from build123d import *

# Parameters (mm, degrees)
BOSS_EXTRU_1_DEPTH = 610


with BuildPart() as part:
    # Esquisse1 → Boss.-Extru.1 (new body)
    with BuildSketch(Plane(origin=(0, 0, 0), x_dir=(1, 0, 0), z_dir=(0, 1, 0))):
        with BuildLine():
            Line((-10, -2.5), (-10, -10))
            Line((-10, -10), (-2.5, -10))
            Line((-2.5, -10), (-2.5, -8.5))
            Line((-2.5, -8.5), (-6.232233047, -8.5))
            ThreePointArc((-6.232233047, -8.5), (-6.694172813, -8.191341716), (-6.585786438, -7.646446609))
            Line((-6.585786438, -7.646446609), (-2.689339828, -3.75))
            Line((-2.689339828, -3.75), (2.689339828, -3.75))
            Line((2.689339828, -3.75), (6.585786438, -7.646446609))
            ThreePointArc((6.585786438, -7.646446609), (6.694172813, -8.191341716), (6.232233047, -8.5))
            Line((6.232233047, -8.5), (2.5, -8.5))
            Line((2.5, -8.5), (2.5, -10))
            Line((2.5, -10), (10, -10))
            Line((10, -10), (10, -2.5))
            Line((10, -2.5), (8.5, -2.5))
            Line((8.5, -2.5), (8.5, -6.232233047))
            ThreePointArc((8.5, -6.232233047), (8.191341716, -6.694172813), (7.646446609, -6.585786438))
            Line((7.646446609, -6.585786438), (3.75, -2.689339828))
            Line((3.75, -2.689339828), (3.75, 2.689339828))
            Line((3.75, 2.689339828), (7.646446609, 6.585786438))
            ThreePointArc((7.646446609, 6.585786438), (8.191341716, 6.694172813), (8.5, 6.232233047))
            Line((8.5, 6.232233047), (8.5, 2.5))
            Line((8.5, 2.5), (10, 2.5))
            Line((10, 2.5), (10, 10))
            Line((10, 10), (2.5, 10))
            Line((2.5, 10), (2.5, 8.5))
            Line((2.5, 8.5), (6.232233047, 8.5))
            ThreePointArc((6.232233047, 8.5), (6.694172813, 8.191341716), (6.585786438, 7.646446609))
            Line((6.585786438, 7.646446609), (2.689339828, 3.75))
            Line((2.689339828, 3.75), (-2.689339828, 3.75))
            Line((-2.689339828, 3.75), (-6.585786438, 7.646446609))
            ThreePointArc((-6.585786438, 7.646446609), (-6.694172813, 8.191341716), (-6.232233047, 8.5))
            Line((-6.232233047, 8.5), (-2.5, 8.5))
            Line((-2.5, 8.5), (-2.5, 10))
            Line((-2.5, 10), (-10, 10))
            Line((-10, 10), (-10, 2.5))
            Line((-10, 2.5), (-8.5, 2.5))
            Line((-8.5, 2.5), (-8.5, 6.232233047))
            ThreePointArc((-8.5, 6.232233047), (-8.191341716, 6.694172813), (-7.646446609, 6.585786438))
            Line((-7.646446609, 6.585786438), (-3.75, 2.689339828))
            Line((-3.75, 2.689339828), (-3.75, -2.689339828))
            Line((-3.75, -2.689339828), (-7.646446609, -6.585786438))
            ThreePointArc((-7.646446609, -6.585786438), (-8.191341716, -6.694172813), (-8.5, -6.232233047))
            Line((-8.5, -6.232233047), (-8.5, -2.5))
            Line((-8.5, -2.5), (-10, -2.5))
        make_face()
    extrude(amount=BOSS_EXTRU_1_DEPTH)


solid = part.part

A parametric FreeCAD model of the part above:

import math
import FreeCAD as App
import Part
import Sketcher
from FreeCAD import Vector

doc = App.newDocument("Part")
body = doc.addObject("PartDesign::Body", "Body")

sketch1 = doc.addObject("Sketcher::SketchObject", "Sketch")
body.addObject(sketch1)
sketch1.AttachmentSupport = (doc.XZ_Plane, [""])
sketch1.MapMode = "FlatFace"
sketch1.addGeometry(Part.LineSegment(Vector(-10, 2.5, 0), Vector(-10, 10, 0)), False)
sketch1.addGeometry(Part.LineSegment(Vector(-10, 10, 0), Vector(-2.5, 10, 0)), False)
sketch1.addGeometry(Part.LineSegment(Vector(-2.5, 10, 0), Vector(-2.5, 8.5, 0)), False)
sketch1.addGeometry(Part.LineSegment(Vector(-2.5, 8.5, 0), Vector(-6.2, 8.5, 0)), False)
sketch1.addGeometry(Part.ArcOfCircle(Part.Circle(Vector(-6.2, 8, 0), Vector(0, 0, 1), 0.5), math.radians(90), math.radians(225)), False)
sketch1.addGeometry(Part.LineSegment(Vector(-6.6, 7.6, 0), Vector(-2.7, 3.8, 0)), False)
sketch1.addGeometry(Part.LineSegment(Vector(-2.7, 3.8, 0), Vector(2.7, 3.8, 0)), False)
sketch1.addGeometry(Part.LineSegment(Vector(2.7, 3.8, 0), Vector(6.6, 7.6, 0)), False)
sketch1.addGeometry(Part.ArcOfCircle(Part.Circle(Vector(6.2, 8, 0), Vector(0, 0, 1), 0.5), math.radians(-45), math.radians(90)), False)
sketch1.addGeometry(Part.LineSegment(Vector(6.2, 8.5, 0), Vector(2.5, 8.5, 0)), False)
sketch1.addGeometry(Part.LineSegment(Vector(2.5, 8.5, 0), Vector(2.5, 10, 0)), False)
sketch1.addGeometry(Part.LineSegment(Vector(2.5, 10, 0), Vector(10, 10, 0)), False)
sketch1.addGeometry(Part.LineSegment(Vector(10, 10, 0), Vector(10, 2.5, 0)), False)
sketch1.addGeometry(Part.LineSegment(Vector(10, 2.5, 0), Vector(8.5, 2.5, 0)), False)
sketch1.addGeometry(Part.LineSegment(Vector(8.5, 2.5, 0), Vector(8.5, 6.2, 0)), False)
sketch1.addGeometry(Part.ArcOfCircle(Part.Circle(Vector(8, 6.2, 0), Vector(0, 0, 1), 0.5), math.radians(0), math.radians(135)), False)
sketch1.addGeometry(Part.LineSegment(Vector(7.6, 6.6, 0), Vector(3.8, 2.7, 0)), False)
sketch1.addGeometry(Part.LineSegment(Vector(3.8, 2.7, 0), Vector(3.8, -2.7, 0)), False)
sketch1.addGeometry(Part.LineSegment(Vector(3.8, -2.7, 0), Vector(7.6, -6.6, 0)), False)
sketch1.addGeometry(Part.ArcOfCircle(Part.Circle(Vector(8, -6.2, 0), Vector(0, 0, 1), 0.5), math.radians(-135), math.radians(0)), False)
sketch1.addGeometry(Part.LineSegment(Vector(8.5, -6.2, 0), Vector(8.5, -2.5, 0)), False)
sketch1.addGeometry(Part.LineSegment(Vector(8.5, -2.5, 0), Vector(10, -2.5, 0)), False)
sketch1.addGeometry(Part.LineSegment(Vector(10, -2.5, 0), Vector(10, -10, 0)), False)
sketch1.addGeometry(Part.LineSegment(Vector(10, -10, 0), Vector(2.5, -10, 0)), False)
sketch1.addGeometry(Part.LineSegment(Vector(2.5, -10, 0), Vector(2.5, -8.5, 0)), False)
sketch1.addGeometry(Part.LineSegment(Vector(2.5, -8.5, 0), Vector(6.2, -8.5, 0)), False)
sketch1.addGeometry(Part.ArcOfCircle(Part.Circle(Vector(6.2, -8, 0), Vector(0, 0, 1), 0.5), math.radians(-90), math.radians(45)), False)
sketch1.addGeometry(Part.LineSegment(Vector(6.6, -7.6, 0), Vector(2.7, -3.8, 0)), False)
sketch1.addGeometry(Part.LineSegment(Vector(2.7, -3.8, 0), Vector(-2.7, -3.8, 0)), False)
sketch1.addGeometry(Part.LineSegment(Vector(-2.7, -3.8, 0), Vector(-6.6, -7.6, 0)), False)
sketch1.addGeometry(Part.ArcOfCircle(Part.Circle(Vector(-6.2, -8, 0), Vector(0, 0, 1), 0.5), math.radians(135), math.radians(270)), False)
sketch1.addGeometry(Part.LineSegment(Vector(-6.2, -8.5, 0), Vector(-2.5, -8.5, 0)), False)
sketch1.addGeometry(Part.LineSegment(Vector(-2.5, -8.5, 0), Vector(-2.5, -10, 0)), False)
sketch1.addGeometry(Part.LineSegment(Vector(-2.5, -10, 0), Vector(-10, -10, 0)), False)
sketch1.addGeometry(Part.LineSegment(Vector(-10, -10, 0), Vector(-10, -2.5, 0)), False)
sketch1.addGeometry(Part.LineSegment(Vector(-10, -2.5, 0), Vector(-8.5, -2.5, 0)), False)
sketch1.addGeometry(Part.LineSegment(Vector(-8.5, -2.5, 0), Vector(-8.5, -6.2, 0)), False)
sketch1.addGeometry(Part.ArcOfCircle(Part.Circle(Vector(-8, -6.2, 0), Vector(0, 0, 1), 0.5), math.radians(-180), math.radians(-45)), False)
sketch1.addGeometry(Part.LineSegment(Vector(-7.6, -6.6, 0), Vector(-3.8, -2.7, 0)), False)
sketch1.addGeometry(Part.LineSegment(Vector(-3.8, -2.7, 0), Vector(-3.8, 2.7, 0)), False)
sketch1.addGeometry(Part.LineSegment(Vector(-3.8, 2.7, 0), Vector(-7.6, 6.6, 0)), False)
sketch1.addGeometry(Part.ArcOfCircle(Part.Circle(Vector(-8, 6.2, 0), Vector(0, 0, 1), 0.5), math.radians(45), math.radians(180)), False)
sketch1.addGeometry(Part.LineSegment(Vector(-8.5, 6.2, 0), Vector(-8.5, 2.5, 0)), False)
sketch1.addGeometry(Part.LineSegment(Vector(-8.5, 2.5, 0), Vector(-10, 2.5, 0)), False)
sketch1.addConstraint(Sketcher.Constraint("Coincident", 0, 2, 1, 1))
sketch1.addConstraint(Sketcher.Constraint("Coincident", 1, 2, 2, 1))
sketch1.addConstraint(Sketcher.Constraint("Coincident", 2, 2, 3, 1))
sketch1.addConstraint(Sketcher.Constraint("Tangent", 3, 2, 4, 1))
sketch1.addConstraint(Sketcher.Constraint("Tangent", 4, 2, 5, 1))
sketch1.addConstraint(Sketcher.Constraint("Coincident", 5, 2, 6, 1))
sketch1.addConstraint(Sketcher.Constraint("Coincident", 6, 2, 7, 1))
sketch1.addConstraint(Sketcher.Constraint("Tangent", 7, 2, 8, 1))
sketch1.addConstraint(Sketcher.Constraint("Tangent", 8, 2, 9, 1))
sketch1.addConstraint(Sketcher.Constraint("Coincident", 9, 2, 10, 1))
sketch1.addConstraint(Sketcher.Constraint("Coincident", 10, 2, 11, 1))
sketch1.addConstraint(Sketcher.Constraint("Coincident", 11, 2, 12, 1))
sketch1.addConstraint(Sketcher.Constraint("Coincident", 12, 2, 13, 1))
sketch1.addConstraint(Sketcher.Constraint("Coincident", 13, 2, 14, 1))
sketch1.addConstraint(Sketcher.Constraint("Tangent", 14, 2, 15, 1))
sketch1.addConstraint(Sketcher.Constraint("Tangent", 15, 2, 16, 1))
sketch1.addConstraint(Sketcher.Constraint("Coincident", 16, 2, 17, 1))
sketch1.addConstraint(Sketcher.Constraint("Coincident", 17, 2, 18, 1))
sketch1.addConstraint(Sketcher.Constraint("Tangent", 18, 2, 19, 1))
sketch1.addConstraint(Sketcher.Constraint("Tangent", 19, 2, 20, 1))
sketch1.addConstraint(Sketcher.Constraint("Coincident", 20, 2, 21, 1))
sketch1.addConstraint(Sketcher.Constraint("Coincident", 21, 2, 22, 1))
sketch1.addConstraint(Sketcher.Constraint("Coincident", 22, 2, 23, 1))
sketch1.addConstraint(Sketcher.Constraint("Coincident", 23, 2, 24, 1))
sketch1.addConstraint(Sketcher.Constraint("Coincident", 24, 2, 25, 1))
sketch1.addConstraint(Sketcher.Constraint("Tangent", 25, 2, 26, 1))
sketch1.addConstraint(Sketcher.Constraint("Tangent", 26, 2, 27, 1))
sketch1.addConstraint(Sketcher.Constraint("Coincident", 27, 2, 28, 1))
sketch1.addConstraint(Sketcher.Constraint("Coincident", 28, 2, 29, 1))
sketch1.addConstraint(Sketcher.Constraint("Tangent", 29, 2, 30, 1))
sketch1.addConstraint(Sketcher.Constraint("Tangent", 30, 2, 31, 1))
sketch1.addConstraint(Sketcher.Constraint("Coincident", 31, 2, 32, 1))
sketch1.addConstraint(Sketcher.Constraint("Coincident", 32, 2, 33, 1))
sketch1.addConstraint(Sketcher.Constraint("Coincident", 33, 2, 34, 1))
sketch1.addConstraint(Sketcher.Constraint("Coincident", 34, 2, 35, 1))
sketch1.addConstraint(Sketcher.Constraint("Coincident", 35, 2, 36, 1))
sketch1.addConstraint(Sketcher.Constraint("Tangent", 36, 2, 37, 1))
sketch1.addConstraint(Sketcher.Constraint("Tangent", 37, 2, 38, 1))
sketch1.addConstraint(Sketcher.Constraint("Coincident", 38, 2, 39, 1))
sketch1.addConstraint(Sketcher.Constraint("Coincident", 39, 2, 40, 1))
sketch1.addConstraint(Sketcher.Constraint("Tangent", 40, 2, 41, 1))
sketch1.addConstraint(Sketcher.Constraint("Tangent", 41, 2, 42, 1))
sketch1.addConstraint(Sketcher.Constraint("Coincident", 42, 2, 43, 1))
sketch1.addConstraint(Sketcher.Constraint("Coincident", 43, 2, 0, 1))
sketch1.addConstraint(Sketcher.Constraint("Vertical", 0))
sketch1.addConstraint(Sketcher.Constraint("Horizontal", 1))
sketch1.addConstraint(Sketcher.Constraint("Vertical", 2))
sketch1.addConstraint(Sketcher.Constraint("Horizontal", 3))
sketch1.addConstraint(Sketcher.Constraint("Horizontal", 6))
sketch1.addConstraint(Sketcher.Constraint("Horizontal", 9))
sketch1.addConstraint(Sketcher.Constraint("Vertical", 10))
sketch1.addConstraint(Sketcher.Constraint("Horizontal", 11))
sketch1.addConstraint(Sketcher.Constraint("Vertical", 12))
sketch1.addConstraint(Sketcher.Constraint("Horizontal", 13))
sketch1.addConstraint(Sketcher.Constraint("Vertical", 14))
sketch1.addConstraint(Sketcher.Constraint("Vertical", 17))
sketch1.addConstraint(Sketcher.Constraint("Vertical", 20))
sketch1.addConstraint(Sketcher.Constraint("Horizontal", 21))
sketch1.addConstraint(Sketcher.Constraint("Vertical", 22))
sketch1.addConstraint(Sketcher.Constraint("Horizontal", 23))
sketch1.addConstraint(Sketcher.Constraint("Vertical", 24))
sketch1.addConstraint(Sketcher.Constraint("Horizontal", 25))
sketch1.addConstraint(Sketcher.Constraint("Horizontal", 28))
sketch1.addConstraint(Sketcher.Constraint("Horizontal", 31))
sketch1.addConstraint(Sketcher.Constraint("Vertical", 32))
sketch1.addConstraint(Sketcher.Constraint("Horizontal", 33))
sketch1.addConstraint(Sketcher.Constraint("Vertical", 34))
sketch1.addConstraint(Sketcher.Constraint("Horizontal", 35))
sketch1.addConstraint(Sketcher.Constraint("Vertical", 36))
sketch1.addConstraint(Sketcher.Constraint("Vertical", 39))
sketch1.addConstraint(Sketcher.Constraint("Vertical", 42))
sketch1.addConstraint(Sketcher.Constraint("Horizontal", 43))
sketch1.addConstraint(Sketcher.Constraint("Equal", 4, 8))
sketch1.addConstraint(Sketcher.Constraint("Equal", 8, 15))
sketch1.addConstraint(Sketcher.Constraint("Equal", 15, 19))
sketch1.addConstraint(Sketcher.Constraint("Equal", 19, 26))
sketch1.addConstraint(Sketcher.Constraint("Equal", 26, 30))
sketch1.addConstraint(Sketcher.Constraint("Equal", 30, 37))
sketch1.addConstraint(Sketcher.Constraint("Equal", 37, 41))
sketch1.addConstraint(Sketcher.Constraint("Symmetric", 4, 3, 26, 3, -1, 1))
sketch1.addConstraint(Sketcher.Constraint("Symmetric", 8, 3, 30, 3, -1, 1))
sketch1.addConstraint(Sketcher.Constraint("Symmetric", 15, 3, 37, 3, -1, 1))
sketch1.addConstraint(Sketcher.Constraint("Symmetric", 19, 3, 41, 3, -1, 1))
sketch1.addConstraint(Sketcher.Constraint("Symmetric", 0, 2, 22, 2, -1, 1))
sketch1.addConstraint(Sketcher.Constraint("Symmetric", 5, 2, 27, 2, -1, 1))
sketch1.addConstraint(Sketcher.Constraint("Symmetric", 10, 2, 32, 2, -1, 1))
sketch1.addConstraint(Sketcher.Constraint("Symmetric", 12, 2, 34, 2, -1, 1))
sketch1.addConstraint(Sketcher.Constraint("Symmetric", 16, 2, 38, 2, -1, 1))
sketch1.addConstraint(Sketcher.Constraint("Symmetric", 4, 3, 8, 3, -2))
sketch1.addConstraint(Sketcher.Constraint("Symmetric", 19, 3, 37, 3, -2))
sketch1.addConstraint(Sketcher.Constraint("Symmetric", 1, 2, 10, 2, -2))
sketch1.addConstraint(Sketcher.Constraint("Symmetric", 21, 2, 34, 2, -2))
sketch1.addConstraint(Sketcher.Constraint("Perpendicular", 5, 7))
sketch1.addConstraint(Sketcher.Constraint("Parallel", 7, 16))
sketch1.addConstraint(Sketcher.Constraint("Perpendicular", 16, 18))
sketch1.addConstraint(Sketcher.Constraint("Perpendicular", 27, 29))
sketch1.addConstraint(Sketcher.Constraint("Perpendicular", 38, 40))
sketch1.addConstraint(Sketcher.Constraint("Horizontal", 4, 2, 7, 2))
sketch1.addConstraint(Sketcher.Constraint("Horizontal", 13, 2, 42, 2))
sketch1.addConstraint(Sketcher.Constraint("Vertical", 10, 2, 23, 2))
sketch1.addConstraint(Sketcher.Constraint("Equal", 33, 0))
sketch1.addConstraint(Sketcher.Constraint("Equal", 43, 2))
sketch1.addConstraint(Sketcher.Constraint("Equal", 31, 14))
sketch1.addConstraint(Sketcher.Constraint("Equal", 28, 17))
sketch1.addConstraint(Sketcher.Constraint("Equal", 7, 16))
sketch1.addConstraint(Sketcher.Constraint("Radius", 4, 0.5))
sketch1.addConstraint(Sketcher.Constraint("DistanceX", 1, 1, 1, 2, 7.5))
sketch1.addConstraint(Sketcher.Constraint("DistanceX", 13, 2, 13, 1, 1.5))
sketch1.addConstraint(Sketcher.Constraint("DistanceY", -1, 1, 4, 3, 8.0))
sketch1.addConstraint(Sketcher.Constraint("DistanceY", -1, 1, 5, 2, 3.75))
sketch1.addConstraint(Sketcher.Constraint("DistanceX", 6, 1, 6, 2, 5.37868))
pad1 = doc.addObject("PartDesign::Pad", "Pad")
body.addObject(pad1)
pad1.Profile = sketch1
pad1.Length = 610
pad1.Reversed = True

doc.recompute()
